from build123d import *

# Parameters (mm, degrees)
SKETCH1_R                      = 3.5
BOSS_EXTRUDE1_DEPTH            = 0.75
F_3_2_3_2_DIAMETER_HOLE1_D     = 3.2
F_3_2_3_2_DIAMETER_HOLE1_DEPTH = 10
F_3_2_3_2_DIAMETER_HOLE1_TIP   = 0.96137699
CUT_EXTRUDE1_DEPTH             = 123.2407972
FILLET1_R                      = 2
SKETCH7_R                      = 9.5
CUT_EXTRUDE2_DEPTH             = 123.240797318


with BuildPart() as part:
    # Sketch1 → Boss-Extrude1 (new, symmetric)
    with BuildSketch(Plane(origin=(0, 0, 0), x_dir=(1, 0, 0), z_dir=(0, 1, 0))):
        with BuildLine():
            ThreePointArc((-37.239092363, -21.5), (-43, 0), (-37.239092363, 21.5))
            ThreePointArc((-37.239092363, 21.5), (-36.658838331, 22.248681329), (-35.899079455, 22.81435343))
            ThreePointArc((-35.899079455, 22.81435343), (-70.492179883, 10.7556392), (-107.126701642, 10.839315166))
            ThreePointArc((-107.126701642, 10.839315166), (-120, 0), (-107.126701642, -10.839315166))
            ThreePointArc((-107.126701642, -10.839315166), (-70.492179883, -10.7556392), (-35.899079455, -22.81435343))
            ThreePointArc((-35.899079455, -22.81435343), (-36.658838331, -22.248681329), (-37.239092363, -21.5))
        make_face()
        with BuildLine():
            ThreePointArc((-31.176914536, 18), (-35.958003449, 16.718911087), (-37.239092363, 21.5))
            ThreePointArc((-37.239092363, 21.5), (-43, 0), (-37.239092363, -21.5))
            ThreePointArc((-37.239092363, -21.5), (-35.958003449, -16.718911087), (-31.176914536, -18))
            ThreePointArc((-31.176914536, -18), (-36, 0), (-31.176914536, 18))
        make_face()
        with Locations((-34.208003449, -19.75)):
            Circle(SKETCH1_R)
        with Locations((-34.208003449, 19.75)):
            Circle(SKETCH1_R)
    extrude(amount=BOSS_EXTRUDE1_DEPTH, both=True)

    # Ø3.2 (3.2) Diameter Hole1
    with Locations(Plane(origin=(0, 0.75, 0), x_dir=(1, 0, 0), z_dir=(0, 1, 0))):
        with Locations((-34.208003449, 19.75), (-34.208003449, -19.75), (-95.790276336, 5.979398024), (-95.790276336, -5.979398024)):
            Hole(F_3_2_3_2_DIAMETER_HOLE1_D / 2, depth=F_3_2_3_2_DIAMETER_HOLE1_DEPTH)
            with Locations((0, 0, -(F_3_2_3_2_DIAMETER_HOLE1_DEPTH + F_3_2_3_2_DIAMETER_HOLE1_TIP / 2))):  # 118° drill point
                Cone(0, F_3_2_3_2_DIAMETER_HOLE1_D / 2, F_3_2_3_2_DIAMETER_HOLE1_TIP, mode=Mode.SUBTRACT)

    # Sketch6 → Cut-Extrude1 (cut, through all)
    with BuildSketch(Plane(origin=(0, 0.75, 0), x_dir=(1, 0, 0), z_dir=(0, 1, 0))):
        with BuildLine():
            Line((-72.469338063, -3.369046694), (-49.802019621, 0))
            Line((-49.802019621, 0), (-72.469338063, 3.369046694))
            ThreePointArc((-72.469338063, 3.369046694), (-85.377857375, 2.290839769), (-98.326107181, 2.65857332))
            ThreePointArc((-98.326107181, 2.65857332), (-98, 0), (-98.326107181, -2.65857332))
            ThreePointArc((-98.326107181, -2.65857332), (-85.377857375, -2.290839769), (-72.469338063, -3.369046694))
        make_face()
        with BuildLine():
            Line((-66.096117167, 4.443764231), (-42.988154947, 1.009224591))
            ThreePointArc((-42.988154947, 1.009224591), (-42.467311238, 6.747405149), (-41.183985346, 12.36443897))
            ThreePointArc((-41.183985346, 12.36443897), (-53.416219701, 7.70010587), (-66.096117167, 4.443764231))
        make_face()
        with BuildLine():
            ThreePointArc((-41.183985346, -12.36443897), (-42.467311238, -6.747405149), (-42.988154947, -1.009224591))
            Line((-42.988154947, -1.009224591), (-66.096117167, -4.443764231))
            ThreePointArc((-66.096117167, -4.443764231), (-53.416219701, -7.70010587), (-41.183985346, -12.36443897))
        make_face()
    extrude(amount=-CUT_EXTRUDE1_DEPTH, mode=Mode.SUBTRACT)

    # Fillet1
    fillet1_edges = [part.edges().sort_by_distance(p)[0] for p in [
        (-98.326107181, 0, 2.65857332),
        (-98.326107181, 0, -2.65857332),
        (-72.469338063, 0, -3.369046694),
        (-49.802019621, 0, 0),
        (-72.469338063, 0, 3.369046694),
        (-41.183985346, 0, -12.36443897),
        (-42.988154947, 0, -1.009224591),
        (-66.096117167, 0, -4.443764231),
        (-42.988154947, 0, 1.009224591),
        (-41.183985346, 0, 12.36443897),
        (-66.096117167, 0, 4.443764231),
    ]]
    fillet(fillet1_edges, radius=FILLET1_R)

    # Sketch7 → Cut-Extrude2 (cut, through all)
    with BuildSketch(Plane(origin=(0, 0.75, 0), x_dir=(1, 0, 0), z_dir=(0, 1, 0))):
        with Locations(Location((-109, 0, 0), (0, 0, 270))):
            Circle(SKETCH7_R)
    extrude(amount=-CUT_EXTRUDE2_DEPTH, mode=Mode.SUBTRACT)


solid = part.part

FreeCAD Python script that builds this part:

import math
import FreeCAD as App
import Part
import Sketcher

V = App.Vector


def edges_at(feature, points):
    """Names of the edges that pass closest to the given points."""
    edges = feature.Shape.Edges
    near = lambda p: min(range(len(edges)), key=lambda i: edges[i].distToShape(Part.Vertex(*p))[0])
    return sorted({f"Edge{near(p) + 1}" for p in points})

doc = App.newDocument("Part")
body = doc.addObject("PartDesign::Body", "Body")

sketch1 = body.newObject("Sketcher::SketchObject", "Sketch")
sketch1.AttachmentSupport = (doc.getObject("XZ_Plane"), [""])
sketch1.MapMode = "FlatFace"
sketch1.addGeometry([
    Part.ArcOfCircle(Part.Circle(V(-88.6, -118.2, 0), V(0, 0, 1), 109), math.radians(61), math.radians(100)),
    Part.ArcOfCircle(Part.Circle(V(-109, 0, 0), V(0, 0, 1), 11), math.radians(80), math.radians(280)),
    Part.ArcOfCircle(Part.Circle(V(-88.6, 118.2, 0), V(0, 0, 1), 109), math.radians(-100), math.radians(-61)),
    Part.ArcOfCircle(Part.Circle(V(-34.2, 19.8, 0), V(0, 0, 1), 3.5), math.radians(-30), math.radians(119)),
    Part.ArcOfCircle(Part.Circle(V(0, 0, 0), V(0, 0, 1), 36), math.radians(150), math.radians(210)),
    Part.ArcOfCircle(Part.Circle(V(-34.2, -19.8, 0), V(0, 0, 1), 3.5), math.radians(-119), math.radians(30)),
], False)
sketch1.addConstraint([
    Sketcher.Constraint("Tangent", 0, 2, 1, 2),
    Sketcher.Constraint("Tangent", 1, 1, 2, 1),
    Sketcher.Constraint("Tangent", 2, 2, 3, 2),
    Sketcher.Constraint("Tangent", 3, 1, 4, 1),
    Sketcher.Constraint("Tangent", 4, 2, 5, 2),
    Sketcher.Constraint("Tangent", 5, 1, 0, 1),
    Sketcher.Constraint("Coincident", 4, 3, -1, 1),
    Sketcher.Constraint("Equal", 0, 2),
    Sketcher.Constraint("Equal", 3, 5),
    Sketcher.Constraint("Symmetric", 0, 3, 2, 3, -1),
    Sketcher.Constraint("Radius", 0, 109.0),
    Sketcher.Constraint("Radius", 1, 11.0),
    Sketcher.Constraint("Radius", 4, 36.0),
    Sketcher.Constraint("Radius", 3, 3.5),
    Sketcher.Constraint("DistanceX", 1, 3, -1, 1, 109.0),
    Sketcher.Constraint("DistanceY", -1, 1, 3, 1, 18.0),
])
pad1 = body.newObject("PartDesign::Pad", "Pad")
pad1.Profile = sketch1
pad1.Length = 1.5
pad1.Midplane = True

sketch2 = body.newObject("Sketcher::SketchObject", "Sketch001")
sketch2.AttachmentSupport = (doc.getObject("XZ_Plane"), [""])
sketch2.MapMode = "FlatFace"
sketch2.AttachmentOffset = App.Placement(V(0, 0, -0.75), App.Rotation())
sketch2.addGeometry([
    Part.Circle(V(-34.2, -19.8, 0), V(0, 0, 1), 1.6),
    Part.Circle(V(-34.2, 19.8, 0), V(0, 0, 1), 1.6),
    Part.Circle(V(-95.8, -6, 0), V(0, 0, 1), 1.6),
    Part.Circle(V(-95.8, 6, 0), V(0, 0, 1), 1.6),
], False)
sketch2.addConstraint([
    Sketcher.Constraint("Equal", 0, 1),
    Sketcher.Constraint("Equal", 1, 2),
    Sketcher.Constraint("Equal", 2, 3),
    Sketcher.Constraint("Symmetric", 0, 3, 1, 3, -1),
    Sketcher.Constraint("Symmetric", 2, 3, 3, 3, -1),
    Sketcher.Constraint("Diameter", 0, 3.2),
    Sketcher.Constraint("DistanceY", 0, 3, 1, 3, 39.5),
    Sketcher.Constraint("DistanceY", 2, 3, -1, 1, 5.979398),
    Sketcher.Constraint("DistanceX", 0, 3, -1, 1, 34.208003),
    Sketcher.Constraint("DistanceX", 2, 3, -1, 1, 95.790276),
])
doc.recompute()
hole = body.newObject("PartDesign::Hole", "Hole")
hole.Profile = sketch2
hole.ThreadType = "None"
hole.Diameter = 3.2
hole.DepthType = "Dimension"
hole.Depth = 10
hole.DrillPoint = "Angled"
hole.DrillPointAngle = 118
hole.Reversed = True

sketch3 = body.newObject("Sketcher::SketchObject", "Sketch002")
sketch3.AttachmentSupport = (doc.getObject("XZ_Plane"), [""])
sketch3.MapMode = "FlatFace"
sketch3.AttachmentOffset = App.Placement(V(0, 0, -0.75), App.Rotation())
sketch3.addGeometry([
    Part.LineSegment(V(-72, 3, 0), V(-50, 0, 0)),
    Part.LineSegment(V(-50, 0, 0), V(-72, -3, 0)),
    Part.ArcOfCircle(Part.Circle(V(-89, -118, 0), V(0, 0, 1), 116), math.radians(82.02), math.radians(94.83)),
    Part.ArcOfCircle(Part.Circle(V(-109, 0, 0), V(0, 0, 1), 11), math.radians(-14), math.radians(14)),
    Part.ArcOfCircle(Part.Circle(V(-89, 118, 0), V(0, 0, 1), 116), math.radians(-94.83), math.radians(-82.02)),
    Part.LineSegment(V(-66, -4, 0), V(-43, -1, 0)),
    Part.ArcOfCircle(Part.Circle(V(0, 0, 0), V(0, 0, 1), 43), math.radians(-178.66), math.radians(-163.29)),
    Part.ArcOfCircle(Part.Circle(V(-89, -118, 0), V(0, 0, 1), 116), math.radians(65.89), math.radians(78.83)),
    Part.ArcOfCircle(Part.Circle(V(0, 0, 0), V(0, 0, 1), 43), math.radians(163.29), math.radians(178.66)),
    Part.LineSegment(V(-43, 1, 0), V(-66, 4, 0)),
    Part.ArcOfCircle(Part.Circle(V(-89, 118, 0), V(0, 0, 1), 116), math.radians(-78.83), math.radians(-65.89)),
], False)
sketch3.addConstraint([
    Sketcher.Constraint("Coincident", 0, 2, 1, 1),
    Sketcher.Constraint("Coincident", 1, 2, 2, 1),
    Sketcher.Constraint("Coincident", 2, 2, 3, 1),
    Sketcher.Constraint("Coincident", 3, 2, 4, 1),
    Sketcher.Constraint("Coincident", 4, 2, 0, 1),
    Sketcher.Constraint("Coincident", 5, 2, 6, 1),
    Sketcher.Constraint("Coincident", 6, 2, 7, 1),
    Sketcher.Constraint("Coincident", 7, 2, 5, 1),
    Sketcher.Constraint("Coincident", 8, 2, 9, 1),
    Sketcher.Constraint("Coincident", 9, 2, 10, 1),
    Sketcher.Constraint("Coincident", 10, 2, 8, 1),
    Sketcher.Constraint("Coincident", 6, 3, -1, 1),
    Sketcher.Constraint("Coincident", 8, 3, -1, 1),
    Sketcher.Constraint("Coincident", 7, 3, 2, 3),
    Sketcher.Constraint("Coincident", 10, 3, 4, 3),
    Sketcher.Constraint("Equal", 2, 4),
    Sketcher.Constraint("Equal", 4, 7),
    Sketcher.Constraint("Equal", 6, 8),
    Sketcher.Constraint("Equal", 7, 10),
    Sketcher.Constraint("Symmetric", 2, 3, 4, 3, -1),
    Sketcher.Constraint("PointOnObject", 3, 3, -1),
    Sketcher.Constraint("PointOnObject", 0, 2, -1),
    Sketcher.Constraint("Parallel", 1, 5),
    Sketcher.Constraint("Parallel", 0, 9),
    Sketcher.Constraint("Vertical", 1, 2, 4, 2),
    Sketcher.Constraint("Vertical", 5, 2, 8, 2),
    Sketcher.Constraint("Radius", 2, 116.0),
    Sketcher.Constraint("Radius", 3, 11.0),
    Sketcher.Constraint("Radius", 6, 43.0),
    Sketcher.Constraint("DistanceX", 3, 3, -1, 1, 109.0),
    Sketcher.Constraint("DistanceX", 2, 3, 0, 2, 38.761998),
    Sketcher.Constraint("Distance", 0, 22.916322),
    Sketcher.Constraint("DistanceX", 0, 2, -1, 1, 49.80202),
    Sketcher.Constraint("DistanceX", 1, 2, -1, 1, 72.469338),
    Sketcher.Constraint("DistanceY", 5, 2, 4, 2, 4.378271),
])
pocket1 = body.newObject("PartDesign::Pocket", "Pocket")
pocket1.Profile = sketch3
pocket1.Type = "ThroughAll"
pocket1.Reversed = True
doc.recompute()

fillet = body.newObject("PartDesign::Fillet", "Fillet")
fillet.Base = (pocket1, edges_at(pocket1, [
    (-98.326, 0, 2.659),
    (-98.326, 0, -2.659),
    (-72.469, 0, -3.369),
    (-49.802, 0, 0),
    (-72.469, 0, 3.369),
    (-41.184, 0, -12.364),
    (-42.988, 0, -1.009),
    (-66.096, 0, -4.444),
    (-42.988, 0, 1.009),
    (-41.184, 0, 12.364),
    (-66.096, 0, 4.444),
]))
fillet.Radius = 2

sketch4 = body.newObject("Sketcher::SketchObject", "Sketch003")
sketch4.AttachmentSupport = (doc.getObject("XZ_Plane"), [""])
sketch4.MapMode = "FlatFace"
sketch4.AttachmentOffset = App.Placement(V(0, 0, -0.75), App.Rotation())
sketch4.addGeometry(Part.Circle(V(-109, 0, 0), V(0, 0, 1), 10), False)
sketch4.addConstraint([
    Sketcher.Constraint("PointOnObject", 0, 3, -1),
    Sketcher.Constraint("Diameter", 0, 19.0),
    Sketcher.Constraint("DistanceX", 0, 3, -1, 1, 109.0),
])
pocket2 = body.newObject("PartDesign::Pocket", "Pocket001")
pocket2.Profile = sketch4
pocket2.Type = "ThroughAll"
pocket2.Reversed = True

doc.recompute()
